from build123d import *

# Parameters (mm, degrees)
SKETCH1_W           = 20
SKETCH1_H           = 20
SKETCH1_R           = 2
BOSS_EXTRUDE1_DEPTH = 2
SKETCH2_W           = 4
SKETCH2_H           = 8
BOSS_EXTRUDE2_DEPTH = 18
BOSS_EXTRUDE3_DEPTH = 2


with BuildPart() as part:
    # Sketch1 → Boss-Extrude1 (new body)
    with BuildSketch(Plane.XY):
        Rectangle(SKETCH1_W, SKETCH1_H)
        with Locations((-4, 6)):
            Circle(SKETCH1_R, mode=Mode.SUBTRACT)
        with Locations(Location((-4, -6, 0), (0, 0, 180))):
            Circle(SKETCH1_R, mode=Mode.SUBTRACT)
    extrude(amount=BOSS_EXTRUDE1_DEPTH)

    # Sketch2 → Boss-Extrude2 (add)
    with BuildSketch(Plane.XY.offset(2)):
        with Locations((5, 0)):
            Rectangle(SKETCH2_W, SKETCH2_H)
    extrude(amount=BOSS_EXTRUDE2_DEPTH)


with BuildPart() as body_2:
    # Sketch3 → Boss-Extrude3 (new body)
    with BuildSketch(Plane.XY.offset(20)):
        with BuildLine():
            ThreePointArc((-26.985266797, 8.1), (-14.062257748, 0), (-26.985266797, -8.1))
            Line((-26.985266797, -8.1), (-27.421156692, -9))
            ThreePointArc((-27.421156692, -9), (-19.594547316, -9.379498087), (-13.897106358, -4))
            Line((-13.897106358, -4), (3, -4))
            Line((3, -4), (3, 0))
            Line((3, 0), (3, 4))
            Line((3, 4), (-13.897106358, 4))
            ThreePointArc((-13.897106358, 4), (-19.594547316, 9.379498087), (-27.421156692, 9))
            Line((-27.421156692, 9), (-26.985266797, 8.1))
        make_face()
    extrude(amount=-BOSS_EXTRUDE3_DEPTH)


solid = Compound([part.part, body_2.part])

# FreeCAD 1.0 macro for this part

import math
import FreeCAD as App
import Part
import Sketcher
from FreeCAD import Vector
Q = App.Units.Quantity


def add_polygon(sketch, points):
    """Adds a closed chain of lines whose ends are joined by coincident constraints."""
    first, n = sketch.GeometryCount, len(points)
    for a, b in zip(points, points[1:] + points[:1]):
        sketch.addGeometry(Part.LineSegment(App.Vector(*a, 0), App.Vector(*b, 0)), False)
    for i in range(n):
        sketch.addConstraint(Sketcher.Constraint("Coincident", first + i, 2, first + (i + 1) % n, 1))

doc = App.newDocument("Part")
body = doc.addObject("PartDesign::Body", "Body")

# Sketch on XY plane
sketch1 = body.newObject("Sketcher::SketchObject", "Sketch")
sketch1.AttachmentSupport = (doc.getObject("XY_Plane"), [""])
sketch1.MapMode = "FlatFace"
add_polygon(sketch1, [(-10, 10), (-10, -10), (10, -10), (10, 10)])  # lines 0-3
sketch1.addGeometry(Part.Circle(Vector(-4, -6, 0), Vector(0, 0, 1), 2), False)  # 4
sketch1.addGeometry(Part.Circle(Vector(-4, 6, 0), Vector(0, 0, 1), 2), False)  # 5
sketch1.addConstraint([
    Sketcher.Constraint("Vertical", 0),
    Sketcher.Constraint("Horizontal", 1),
    Sketcher.Constraint("Vertical", 2),
    Sketcher.Constraint("Horizontal", 3),
    Sketcher.Constraint("Equal", 4, 5),
    Sketcher.Constraint("Symmetric", 0, 2, 2, 2, -1, 1),
    Sketcher.Constraint("Symmetric", 4, 3, 5, 3, -1),
    Sketcher.Constraint("Equal", 3, 0),
    Sketcher.Constraint("Diameter", 4, Q("4 mm")),
    Sketcher.Constraint("DistanceX", 1, 1, 1, 2, Q("20 mm")),
    Sketcher.Constraint("DistanceX", 4, 3, -1, 1, Q("4 mm")),
    Sketcher.Constraint("DistanceY", 4, 3, -1, 1, Q("6 mm")),
])
pad1 = body.newObject("PartDesign::Pad", "Pad")
pad1.Profile = sketch1
pad1.Length = 2

# Sketch on XY plane
sketch2 = body.newObject("Sketcher::SketchObject", "Sketch001")
sketch2.AttachmentSupport = (doc.getObject("XY_Plane"), [""])
sketch2.MapMode = "FlatFace"
sketch2.AttachmentOffset = App.Placement(Vector(0, 0, 2), App.Rotation())
add_polygon(sketch2, [(3, 4), (3, -4), (7, -4), (7, 4)])  # lines 0-3
sketch2.addConstraint([
    Sketcher.Constraint("Vertical", 0),
    Sketcher.Constraint("Horizontal", 1),
    Sketcher.Constraint("Vertical", 2),
    Sketcher.Constraint("Horizontal", 3),
    Sketcher.Constraint("DistanceX", 1, 1, 1, 2, Q("4 mm")),
    Sketcher.Constraint("DistanceY", 0, 2, 0, 1, Q("8 mm")),
    Sketcher.Constraint("DistanceX", -1, 1, 0, 2, Q("3 mm")),
    Sketcher.Constraint("DistanceY", 0, 2, -1, 1, Q("4 mm")),
])
pad2 = body.newObject("PartDesign::Pad", "Pad001")
pad2.Profile = sketch2
pad2.Length = 18
body2 = doc.addObject("PartDesign::Body", "Body001")

# Sketch on XY plane
sketch3 = body2.newObject("Sketcher::SketchObject", "Sketch002")
sketch3.AttachmentSupport = (doc.getObject("XY_Plane001"), [""])
sketch3.MapMode = "FlatFace"
sketch3.AttachmentOffset = App.Placement(Vector(0, 0, 20), App.Rotation())
sketch3.addGeometry([
    Part.ArcOfCircle(Part.Circle(Vector(-23.1, 0, 0), Vector(0, 0, 1), 9), math.radians(-116), math.radians(116)),  # 0
    Part.LineSegment(Vector(-27, -8.1, 0), Vector(-27.4, -9, 0)),  # 1
    Part.ArcOfCircle(Part.Circle(Vector(-23.1, 0, 0), Vector(0, 0, 1), 10), math.radians(-116), math.radians(-24)),  # 2
    Part.LineSegment(Vector(-13.9, -4, 0), Vector(3, -4, 0)),  # 3
    Part.LineSegment(Vector(3, -4, 0), Vector(3, 4, 0)),  # 4
    Part.LineSegment(Vector(3, 4, 0), Vector(-13.9, 4, 0)),  # 5
    Part.ArcOfCircle(Part.Circle(Vector(-23.1, 0, 0), Vector(0, 0, 1), 10), math.radians(24), math.radians(116)),  # 6
    Part.LineSegment(Vector(-27.4, 9, 0), Vector(-27, 8.1, 0)),  # 7
], False)
sketch3.addConstraint([
    Sketcher.Constraint("Coincident", 0, 1, 1, 1),
    Sketcher.Constraint("Coincident", 1, 2, 2, 1),
    Sketcher.Constraint("Coincident", 2, 2, 3, 1),
    Sketcher.Constraint("Coincident", 3, 2, 4, 1),
    Sketcher.Constraint("Coincident", 4, 2, 5, 1),
    Sketcher.Constraint("Coincident", 5, 2, 6, 1),
    Sketcher.Constraint("Coincident", 6, 2, 7, 1),
    Sketcher.Constraint("Coincident", 7, 2, 0, 2),
    Sketcher.Constraint("Horizontal", 3),
    Sketcher.Constraint("Vertical", 4),
    Sketcher.Constraint("Horizontal", 5),
    Sketcher.Constraint("Coincident", 2, 3, 0, 3),
    Sketcher.Constraint("Coincident", 6, 3, 0, 3),
    Sketcher.Constraint("Equal", 2, 6),
    Sketcher.Constraint("Symmetric", 2, 2, 5, 2, -1),
    Sketcher.Constraint("Vertical", 1, 2, 6, 2),
    Sketcher.Constraint("Vertical", 0, 1, 7, 2),
    Sketcher.Constraint("Radius", 0, Q("9 mm")),
    Sketcher.Constraint("Radius", 2, Q("10 mm")),
    Sketcher.Constraint("DistanceY", 4, 1, 4, 2, Q("8 mm")),
    Sketcher.Constraint("DistanceY", 1, 2, -1, 1, Q("9 mm")),
    Sketcher.Constraint("DistanceX", -1, 1, 3, 2, Q("3 mm")),
    Sketcher.Constraint("DistanceY", 0, 1, -1, 1, Q("8.1 mm")),
    Sketcher.Constraint("DistanceX", 3, 1, 3, 2, Q("16.897106 mm")),
])
pad3 = body2.newObject("PartDesign::Pad", "Pad002")
pad3.Profile = sketch3
pad3.Length = 2
pad3.Reversed = True

doc.recompute()
